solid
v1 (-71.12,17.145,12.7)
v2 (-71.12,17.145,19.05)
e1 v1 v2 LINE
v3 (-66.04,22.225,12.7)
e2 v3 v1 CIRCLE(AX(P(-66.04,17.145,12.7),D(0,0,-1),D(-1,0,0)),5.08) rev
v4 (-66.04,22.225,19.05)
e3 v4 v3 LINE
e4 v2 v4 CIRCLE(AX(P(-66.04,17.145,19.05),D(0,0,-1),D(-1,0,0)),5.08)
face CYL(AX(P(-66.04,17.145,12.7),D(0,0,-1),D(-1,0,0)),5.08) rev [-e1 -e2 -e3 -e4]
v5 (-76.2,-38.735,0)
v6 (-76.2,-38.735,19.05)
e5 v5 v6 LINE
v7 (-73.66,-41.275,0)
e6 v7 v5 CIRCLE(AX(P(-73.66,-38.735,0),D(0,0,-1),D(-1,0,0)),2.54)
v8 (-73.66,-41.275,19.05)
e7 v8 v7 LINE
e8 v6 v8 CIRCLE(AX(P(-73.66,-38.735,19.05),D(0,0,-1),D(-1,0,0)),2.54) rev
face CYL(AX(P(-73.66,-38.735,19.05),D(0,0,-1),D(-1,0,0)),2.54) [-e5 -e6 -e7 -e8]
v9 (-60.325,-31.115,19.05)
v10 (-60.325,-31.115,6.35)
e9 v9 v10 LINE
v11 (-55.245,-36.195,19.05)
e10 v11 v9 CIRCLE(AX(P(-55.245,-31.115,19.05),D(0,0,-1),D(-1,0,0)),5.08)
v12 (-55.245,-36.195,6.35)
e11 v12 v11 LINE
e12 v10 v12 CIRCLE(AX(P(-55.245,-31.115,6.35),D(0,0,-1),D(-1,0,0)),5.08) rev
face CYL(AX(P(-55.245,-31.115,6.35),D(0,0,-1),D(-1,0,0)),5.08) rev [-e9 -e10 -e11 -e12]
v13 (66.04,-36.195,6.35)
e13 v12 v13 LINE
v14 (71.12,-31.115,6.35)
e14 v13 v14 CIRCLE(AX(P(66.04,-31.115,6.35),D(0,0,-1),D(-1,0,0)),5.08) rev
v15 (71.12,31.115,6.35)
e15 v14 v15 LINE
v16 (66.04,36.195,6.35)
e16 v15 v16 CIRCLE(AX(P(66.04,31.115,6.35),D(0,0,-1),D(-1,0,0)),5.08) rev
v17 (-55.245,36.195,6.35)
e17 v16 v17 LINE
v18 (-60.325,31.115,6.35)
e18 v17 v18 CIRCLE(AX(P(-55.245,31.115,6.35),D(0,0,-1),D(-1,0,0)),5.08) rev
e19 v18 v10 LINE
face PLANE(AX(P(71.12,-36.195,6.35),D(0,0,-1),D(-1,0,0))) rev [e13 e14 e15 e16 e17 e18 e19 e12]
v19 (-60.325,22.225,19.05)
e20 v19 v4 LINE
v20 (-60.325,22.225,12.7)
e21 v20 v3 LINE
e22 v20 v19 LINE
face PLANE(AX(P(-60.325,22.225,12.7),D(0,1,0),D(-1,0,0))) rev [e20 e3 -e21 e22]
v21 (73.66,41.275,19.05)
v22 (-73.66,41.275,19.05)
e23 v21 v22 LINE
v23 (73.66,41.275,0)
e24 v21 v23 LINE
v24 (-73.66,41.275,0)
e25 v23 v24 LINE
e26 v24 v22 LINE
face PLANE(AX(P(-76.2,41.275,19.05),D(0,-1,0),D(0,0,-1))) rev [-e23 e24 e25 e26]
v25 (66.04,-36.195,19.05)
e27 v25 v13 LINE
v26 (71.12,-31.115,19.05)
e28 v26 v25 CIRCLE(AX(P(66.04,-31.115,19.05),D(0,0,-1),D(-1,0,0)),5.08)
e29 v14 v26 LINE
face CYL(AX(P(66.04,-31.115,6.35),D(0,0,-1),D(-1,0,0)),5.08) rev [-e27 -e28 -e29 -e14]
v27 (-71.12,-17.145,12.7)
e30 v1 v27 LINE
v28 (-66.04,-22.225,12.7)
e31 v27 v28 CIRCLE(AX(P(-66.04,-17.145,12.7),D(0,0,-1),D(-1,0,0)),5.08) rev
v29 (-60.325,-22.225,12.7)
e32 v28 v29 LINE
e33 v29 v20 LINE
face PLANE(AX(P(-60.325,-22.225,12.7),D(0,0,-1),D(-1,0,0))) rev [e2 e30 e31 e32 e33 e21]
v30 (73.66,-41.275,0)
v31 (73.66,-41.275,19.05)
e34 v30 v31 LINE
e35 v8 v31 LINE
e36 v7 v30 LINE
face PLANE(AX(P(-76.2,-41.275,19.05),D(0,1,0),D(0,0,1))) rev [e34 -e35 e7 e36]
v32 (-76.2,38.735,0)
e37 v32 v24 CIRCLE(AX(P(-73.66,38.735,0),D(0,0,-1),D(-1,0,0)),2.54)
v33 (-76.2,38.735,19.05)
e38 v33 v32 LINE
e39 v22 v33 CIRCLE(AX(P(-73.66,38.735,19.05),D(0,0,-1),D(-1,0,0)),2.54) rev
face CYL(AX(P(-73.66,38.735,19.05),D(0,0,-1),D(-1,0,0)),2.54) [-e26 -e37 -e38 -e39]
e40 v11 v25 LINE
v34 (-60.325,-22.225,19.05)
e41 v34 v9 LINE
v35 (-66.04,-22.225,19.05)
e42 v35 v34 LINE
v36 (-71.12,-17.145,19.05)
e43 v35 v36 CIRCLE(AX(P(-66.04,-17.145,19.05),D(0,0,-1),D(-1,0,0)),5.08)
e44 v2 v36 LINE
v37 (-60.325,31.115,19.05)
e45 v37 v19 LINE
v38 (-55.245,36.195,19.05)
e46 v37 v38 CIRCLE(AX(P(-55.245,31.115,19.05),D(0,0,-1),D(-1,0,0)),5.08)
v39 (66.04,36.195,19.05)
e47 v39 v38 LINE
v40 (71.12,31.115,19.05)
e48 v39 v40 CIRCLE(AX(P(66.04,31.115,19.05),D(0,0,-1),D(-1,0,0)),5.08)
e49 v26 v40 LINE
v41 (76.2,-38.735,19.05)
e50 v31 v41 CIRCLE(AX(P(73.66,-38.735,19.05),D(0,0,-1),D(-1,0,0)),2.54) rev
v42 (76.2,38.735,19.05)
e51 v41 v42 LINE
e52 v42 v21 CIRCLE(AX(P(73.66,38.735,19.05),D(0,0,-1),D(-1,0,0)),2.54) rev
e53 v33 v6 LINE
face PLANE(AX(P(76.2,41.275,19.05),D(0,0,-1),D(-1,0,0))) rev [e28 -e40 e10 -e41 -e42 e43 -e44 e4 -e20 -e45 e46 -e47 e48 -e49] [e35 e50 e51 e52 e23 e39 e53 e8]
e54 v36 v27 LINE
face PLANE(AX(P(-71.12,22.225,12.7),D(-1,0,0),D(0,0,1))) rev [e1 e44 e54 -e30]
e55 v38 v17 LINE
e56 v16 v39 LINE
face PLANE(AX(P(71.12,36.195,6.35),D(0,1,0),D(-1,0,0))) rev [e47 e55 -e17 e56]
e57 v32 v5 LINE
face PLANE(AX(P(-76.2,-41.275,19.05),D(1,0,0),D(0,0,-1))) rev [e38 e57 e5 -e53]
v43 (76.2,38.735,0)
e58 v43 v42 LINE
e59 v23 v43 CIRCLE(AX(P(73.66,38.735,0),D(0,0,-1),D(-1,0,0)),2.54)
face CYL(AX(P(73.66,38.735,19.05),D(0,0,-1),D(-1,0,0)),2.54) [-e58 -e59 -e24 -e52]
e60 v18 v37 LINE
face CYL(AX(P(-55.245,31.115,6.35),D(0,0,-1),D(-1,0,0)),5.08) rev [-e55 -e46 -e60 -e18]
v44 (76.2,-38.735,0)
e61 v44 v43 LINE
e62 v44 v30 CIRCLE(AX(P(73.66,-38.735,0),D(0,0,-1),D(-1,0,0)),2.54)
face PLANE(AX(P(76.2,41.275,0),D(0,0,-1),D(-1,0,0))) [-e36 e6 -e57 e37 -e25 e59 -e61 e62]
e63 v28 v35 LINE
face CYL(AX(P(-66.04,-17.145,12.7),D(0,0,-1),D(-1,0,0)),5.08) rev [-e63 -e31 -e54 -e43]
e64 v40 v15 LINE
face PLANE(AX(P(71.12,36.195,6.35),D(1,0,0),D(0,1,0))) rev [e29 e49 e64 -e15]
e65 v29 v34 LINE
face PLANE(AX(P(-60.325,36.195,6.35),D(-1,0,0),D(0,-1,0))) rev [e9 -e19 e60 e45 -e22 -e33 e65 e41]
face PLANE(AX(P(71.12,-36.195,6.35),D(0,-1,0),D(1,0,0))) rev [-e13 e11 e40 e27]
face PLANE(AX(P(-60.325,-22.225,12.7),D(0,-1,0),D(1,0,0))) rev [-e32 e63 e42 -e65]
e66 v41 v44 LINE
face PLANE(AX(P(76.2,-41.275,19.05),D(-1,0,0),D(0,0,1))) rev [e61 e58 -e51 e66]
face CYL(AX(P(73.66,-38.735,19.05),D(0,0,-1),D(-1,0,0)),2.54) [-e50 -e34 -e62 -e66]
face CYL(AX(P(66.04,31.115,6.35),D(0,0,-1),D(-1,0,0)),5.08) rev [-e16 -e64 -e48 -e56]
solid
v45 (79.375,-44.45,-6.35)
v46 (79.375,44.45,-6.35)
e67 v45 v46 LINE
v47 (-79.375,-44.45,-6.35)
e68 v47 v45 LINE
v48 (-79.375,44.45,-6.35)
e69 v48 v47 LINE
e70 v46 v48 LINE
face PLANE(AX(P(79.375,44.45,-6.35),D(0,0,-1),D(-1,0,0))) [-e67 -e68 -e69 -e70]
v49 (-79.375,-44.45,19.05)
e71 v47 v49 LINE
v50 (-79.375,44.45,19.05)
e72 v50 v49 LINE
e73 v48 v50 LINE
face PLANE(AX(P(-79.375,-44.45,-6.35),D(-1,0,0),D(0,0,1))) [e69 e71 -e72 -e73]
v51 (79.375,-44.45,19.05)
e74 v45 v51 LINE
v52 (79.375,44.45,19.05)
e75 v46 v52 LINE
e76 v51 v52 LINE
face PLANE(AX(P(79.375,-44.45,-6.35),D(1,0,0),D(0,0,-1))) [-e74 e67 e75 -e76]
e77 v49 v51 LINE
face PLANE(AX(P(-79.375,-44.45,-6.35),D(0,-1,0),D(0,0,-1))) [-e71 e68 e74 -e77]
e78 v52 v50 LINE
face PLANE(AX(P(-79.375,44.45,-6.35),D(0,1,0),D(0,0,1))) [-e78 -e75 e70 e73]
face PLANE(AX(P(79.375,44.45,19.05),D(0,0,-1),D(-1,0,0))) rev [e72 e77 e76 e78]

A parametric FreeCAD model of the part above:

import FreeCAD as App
import Part
import Sketcher

V = App.Vector
Q = App.Units.Quantity


def edges_at(feature, points):
    """Names of the edges that pass closest to the given points."""
    edges = feature.Shape.Edges
    near = lambda p: min(range(len(edges)), key=lambda i: edges[i].distToShape(Part.Vertex(*p))[0])
    return sorted({f"Edge{near(p) + 1}" for p in points})


def add_polygon(sketch, points):
    """Adds a closed chain of lines whose ends are joined by coincident constraints."""
    first, n = sketch.GeometryCount, len(points)
    for a, b in zip(points, points[1:] + points[:1]):
        sketch.addGeometry(Part.LineSegment(App.Vector(*a, 0), App.Vector(*b, 0)), False)
    for i in range(n):
        sketch.addConstraint(Sketcher.Constraint("Coincident", first + i, 2, first + (i + 1) % n, 1))

doc = App.newDocument("Part")
params = doc.addObject("Spreadsheet::Sheet", "Params")
for row, (alias, value) in enumerate([
    ("sketch1_width", "6 in"),
    ("sketch1_height", "3.25 in"),
    ("pad1_length", "0.75 in"),
    ("sketch2_height", "2.85 in"),
    ("sketch2_width", "5.175 in"),
    ("pocket1_length", "0.5 in"),
    ("fillet_radius", "0.1 in"),
    ("fillet2_radius", "0.2 in"),
    ("sketch3_height", "1.75 in"),
    ("sketch3_width", "0.425 in"),
    ("pocket2_length", "0.25 in"),
    ("fillet3_radius", "0.2 in"),
    ("sketch4_height", "3.5 in"),
    ("sketch4_width", "6.25 in"),
    ("pad2_length", "1 in"),
], start=1):
    params.set(f"A{row}", alias)
    params.set(f"B{row}", "=" + value)
    params.setAlias(f"B{row}", alias)

body = doc.addObject("PartDesign::Body", "Body")

sketch1 = body.newObject("Sketcher::SketchObject", "Sketch")
sketch1.AttachmentSupport = (doc.getObject("XY_Plane"), [""])
sketch1.MapMode = "FlatFace"
add_polygon(sketch1, [(-76, 41), (-76, -41), (76, -41), (76, 41)])
sketch1.addConstraint([
    Sketcher.Constraint("Vertical", 0),
    Sketcher.Constraint("Horizontal", 1),
    Sketcher.Constraint("Vertical", 2),
    Sketcher.Constraint("Horizontal", 3),
    Sketcher.Constraint("Symmetric", 0, 2, 2, 2, -1, 1),
    Sketcher.Constraint("DistanceX", 1, 1, 1, 2, Q("6 in")),
    Sketcher.Constraint("DistanceY", 0, 2, 0, 1, Q("3.25 in")),
])
sketch1.setExpression("Constraints[9]", "Params.sketch1_width")
sketch1.setExpression("Constraints[10]", "Params.sketch1_height")
pad1 = body.newObject("PartDesign::Pad", "Pad")
pad1.Profile = sketch1
pad1.setExpression("Length", "Params.pad1_length")

sketch2 = body.newObject("Sketcher::SketchObject", "Sketch001")
sketch2.AttachmentSupport = (doc.getObject("XY_Plane"), [""])
sketch2.MapMode = "FlatFace"
sketch2.AttachmentOffset = App.Placement(V(0, 0, 0.75 * 25.4), App.Rotation())
add_polygon(sketch2, [(-60, 36), (-60, -36), (71, -36), (71, 36)])
sketch2.addConstraint([
    Sketcher.Constraint("Vertical", 0),
    Sketcher.Constraint("Horizontal", 1),
    Sketcher.Constraint("Vertical", 2),
    Sketcher.Constraint("Horizontal", 3),
    Sketcher.Constraint("DistanceY", 0, 2, 0, 1, Q("2.85 in")),
    Sketcher.Constraint("DistanceX", -1, 1, 1, 2, Q("2.8 in")),
    Sketcher.Constraint("DistanceX", 1, 1, 1, 2, Q("5.175 in")),
    Sketcher.Constraint("DistanceY", 0, 2, -1, 1, Q("1.425 in")),
])
sketch2.setExpression("Constraints[8]", "Params.sketch2_height")
sketch2.setExpression("Constraints[10]", "Params.sketch2_width")
pocket1 = body.newObject("PartDesign::Pocket", "Pocket")
pocket1.Profile = sketch2
pocket1.setExpression("Length", "Params.pocket1_length")
doc.recompute()

fillet = body.newObject("PartDesign::Fillet", "Fillet")
fillet.Base = (pocket1, edges_at(pocket1, [
    (76.2, -41.275, 9.525),
    (-76.2, -41.275, 9.525),
    (-76.2, 41.275, 9.525),
    (76.2, 41.275, 9.525),
]))
fillet.setExpression("Radius", "Params.fillet_radius")
doc.recompute()

fillet2 = body.newObject("PartDesign::Fillet", "Fillet001")
fillet2.Base = (fillet, edges_at(fillet, [
    (71.12, 36.195, 12.7),
    (71.12, -36.195, 12.7),
    (-60.325, -36.195, 12.7),
    (-60.325, 36.195, 12.7),
]))
fillet2.setExpression("Radius", "Params.fillet2_radius")

sketch3 = body.newObject("Sketcher::SketchObject", "Sketch002")
sketch3.AttachmentSupport = (doc.getObject("XY_Plane"), [""])
sketch3.MapMode = "FlatFace"
sketch3.AttachmentOffset = App.Placement(V(0, 0, 0.75 * 25.4), App.Rotation())
add_polygon(sketch3, [(-71, 22), (-71, -22), (-60, -22), (-60, 22)])
sketch3.addConstraint([
    Sketcher.Constraint("Vertical", 0),
    Sketcher.Constraint("Horizontal", 1),
    Sketcher.Constraint("Vertical", 2),
    Sketcher.Constraint("Horizontal", 3),
    Sketcher.Constraint("DistanceY", 0, 2, 0, 1, Q("1.75 in")),
    Sketcher.Constraint("DistanceX", 0, 2, -1, 1, Q("2.8 in")),
    Sketcher.Constraint("DistanceX", 1, 1, 1, 2, Q("0.425 in")),
    Sketcher.Constraint("DistanceY", 0, 2, -1, 1, Q("0.875 in")),
])
sketch3.setExpression("Constraints[8]", "Params.sketch3_height")
sketch3.setExpression("Constraints[10]", "Params.sketch3_width")
pocket2 = body.newObject("PartDesign::Pocket", "Pocket001")
pocket2.Profile = sketch3
pocket2.setExpression("Length", "Params.pocket2_length")
doc.recompute()

fillet3 = body.newObject("PartDesign::Fillet", "Fillet002")
fillet3.Base = (pocket2, edges_at(pocket2, [(-71.12, -22.225, 15.875), (-71.12, 22.225, 15.875)]))
fillet3.setExpression("Radius", "Params.fillet3_radius")
body2 = doc.addObject("PartDesign::Body", "Body001")

sketch4 = body2.newObject("Sketcher::SketchObject", "Sketch003")
sketch4.AttachmentSupport = (doc.getObject("XY_Plane001"), [""])
sketch4.MapMode = "FlatFace"
sketch4.AttachmentOffset = App.Placement(V(0, 0, 0.75 * 25.4), App.Rotation())
add_polygon(sketch4, [(-79, 44), (-79, -44), (79, -44), (79, 44)])
sketch4.addConstraint([
    Sketcher.Constraint("Vertical", 0),
    Sketcher.Constraint("Horizontal", 1),
    Sketcher.Constraint("Vertical", 2),
    Sketcher.Constraint("Horizontal", 3),
    Sketcher.Constraint("Symmetric", 0, 2, 2, 2, -1, 1),
    Sketcher.Constraint("DistanceY", 0, 2, 0, 1, Q("3.5 in")),
    Sketcher.Constraint("DistanceX", 1, 1, 1, 2, Q("6.25 in")),
])
sketch4.setExpression("Constraints[9]", "Params.sketch4_height")
sketch4.setExpression("Constraints[10]", "Params.sketch4_width")
pad2 = body2.newObject("PartDesign::Pad", "Pad001")
pad2.Profile = sketch4
pad2.setExpression("Length", "Params.pad2_length")
pad2.Reversed = True

doc.recompute()
